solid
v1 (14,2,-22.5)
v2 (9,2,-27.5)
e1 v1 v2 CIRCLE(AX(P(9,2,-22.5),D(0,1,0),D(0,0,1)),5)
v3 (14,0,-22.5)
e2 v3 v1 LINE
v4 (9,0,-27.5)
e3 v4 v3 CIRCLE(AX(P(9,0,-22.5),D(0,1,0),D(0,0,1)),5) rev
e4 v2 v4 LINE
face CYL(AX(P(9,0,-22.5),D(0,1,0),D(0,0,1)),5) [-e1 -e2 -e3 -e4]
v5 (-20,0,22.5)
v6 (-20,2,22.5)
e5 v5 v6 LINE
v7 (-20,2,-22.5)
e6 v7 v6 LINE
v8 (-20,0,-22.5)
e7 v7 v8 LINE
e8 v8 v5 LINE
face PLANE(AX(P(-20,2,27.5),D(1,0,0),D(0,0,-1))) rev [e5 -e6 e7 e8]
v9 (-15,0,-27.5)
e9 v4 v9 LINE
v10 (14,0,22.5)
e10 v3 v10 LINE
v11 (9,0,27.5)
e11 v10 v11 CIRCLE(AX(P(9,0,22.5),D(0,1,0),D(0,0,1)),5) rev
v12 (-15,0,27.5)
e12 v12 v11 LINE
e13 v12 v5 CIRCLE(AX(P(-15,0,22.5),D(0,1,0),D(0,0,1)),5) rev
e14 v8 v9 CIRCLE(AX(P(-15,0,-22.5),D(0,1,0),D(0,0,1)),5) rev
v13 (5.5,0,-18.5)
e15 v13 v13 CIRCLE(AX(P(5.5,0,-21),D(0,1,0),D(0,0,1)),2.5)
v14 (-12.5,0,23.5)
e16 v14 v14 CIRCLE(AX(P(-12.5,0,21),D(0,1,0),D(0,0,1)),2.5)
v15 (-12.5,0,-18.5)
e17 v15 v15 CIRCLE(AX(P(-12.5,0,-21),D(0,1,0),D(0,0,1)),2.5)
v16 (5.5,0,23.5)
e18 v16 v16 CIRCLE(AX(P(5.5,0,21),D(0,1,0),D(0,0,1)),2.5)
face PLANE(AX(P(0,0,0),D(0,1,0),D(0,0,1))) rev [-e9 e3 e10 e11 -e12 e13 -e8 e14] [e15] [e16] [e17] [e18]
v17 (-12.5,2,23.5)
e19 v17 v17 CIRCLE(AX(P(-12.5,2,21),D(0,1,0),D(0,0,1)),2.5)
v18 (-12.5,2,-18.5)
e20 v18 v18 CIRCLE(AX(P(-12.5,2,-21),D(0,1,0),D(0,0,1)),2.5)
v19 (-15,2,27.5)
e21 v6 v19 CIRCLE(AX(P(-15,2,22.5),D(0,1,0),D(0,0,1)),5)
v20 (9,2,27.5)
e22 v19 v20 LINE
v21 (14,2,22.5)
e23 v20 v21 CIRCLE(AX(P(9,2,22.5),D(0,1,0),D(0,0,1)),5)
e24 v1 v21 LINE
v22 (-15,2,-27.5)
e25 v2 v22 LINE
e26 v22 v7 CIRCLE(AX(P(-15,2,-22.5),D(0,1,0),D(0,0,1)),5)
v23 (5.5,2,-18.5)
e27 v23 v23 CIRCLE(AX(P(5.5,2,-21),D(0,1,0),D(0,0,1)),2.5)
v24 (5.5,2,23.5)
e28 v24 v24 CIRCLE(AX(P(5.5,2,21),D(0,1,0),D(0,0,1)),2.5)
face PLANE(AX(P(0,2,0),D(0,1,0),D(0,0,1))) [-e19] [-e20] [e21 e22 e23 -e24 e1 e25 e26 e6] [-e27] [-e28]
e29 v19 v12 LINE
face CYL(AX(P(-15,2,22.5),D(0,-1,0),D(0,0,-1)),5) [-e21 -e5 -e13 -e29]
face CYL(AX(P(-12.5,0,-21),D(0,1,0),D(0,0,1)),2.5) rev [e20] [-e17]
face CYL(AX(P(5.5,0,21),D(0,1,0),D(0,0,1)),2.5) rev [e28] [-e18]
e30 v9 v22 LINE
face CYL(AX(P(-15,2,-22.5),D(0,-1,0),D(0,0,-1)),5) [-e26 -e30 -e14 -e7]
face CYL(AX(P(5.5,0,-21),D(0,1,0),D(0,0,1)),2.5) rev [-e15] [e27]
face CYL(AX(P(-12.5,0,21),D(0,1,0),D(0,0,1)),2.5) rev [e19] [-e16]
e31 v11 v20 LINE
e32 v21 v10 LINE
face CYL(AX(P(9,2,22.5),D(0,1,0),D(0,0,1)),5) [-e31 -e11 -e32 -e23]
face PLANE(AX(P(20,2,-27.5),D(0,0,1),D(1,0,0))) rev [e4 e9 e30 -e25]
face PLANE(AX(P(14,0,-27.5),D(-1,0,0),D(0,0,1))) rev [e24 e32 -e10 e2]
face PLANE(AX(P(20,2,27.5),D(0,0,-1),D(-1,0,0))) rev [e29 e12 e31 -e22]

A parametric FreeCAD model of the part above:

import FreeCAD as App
import Part
import Sketcher


def edges_at(feature, points):
    """Names of the edges that pass closest to the given points."""
    edges = feature.Shape.Edges
    near = lambda p: min(range(len(edges)), key=lambda i: edges[i].distToShape(Part.Vertex(*p))[0])
    return sorted({f"Edge{near(p) + 1}" for p in points})

doc = App.newDocument("Part")
body = doc.addObject("PartDesign::Body", "Body")

# Sketch on XZ plane
sketch1 = body.newObject("Sketcher::SketchObject", "Sketch")
sketch1.AttachmentSupport = (doc.getObject("XZ_Plane"), [""])
sketch1.MapMode = "FlatFace"
sketch1.addGeometry([
    Part.LineSegment(App.Vector(-20, -28, 0), App.Vector(-20, 28, 0)),
    Part.LineSegment(App.Vector(-20, 28, 0), App.Vector(20, 28, 0)),
    Part.LineSegment(App.Vector(20, 28, 0), App.Vector(20, -28, 0)),
    Part.LineSegment(App.Vector(20, -28, 0), App.Vector(-20, -28, 0)),
], False)
sketch1.addConstraint([
    Sketcher.Constraint("Coincident", 0, 2, 1, 1),
    Sketcher.Constraint("Coincident", 1, 2, 2, 1),
    Sketcher.Constraint("Coincident", 2, 2, 3, 1),
    Sketcher.Constraint("Coincident", 3, 2, 0, 1),
    Sketcher.Constraint("Vertical", 0),
    Sketcher.Constraint("Horizontal", 1),
    Sketcher.Constraint("Vertical", 2),
    Sketcher.Constraint("Horizontal", 3),
    Sketcher.Constraint("Symmetric", 0, 2, 2, 2, -1, 1),
    Sketcher.Constraint("DistanceX", 1, 1, 1, 2, 40.0),
    Sketcher.Constraint("DistanceY", 0, 1, 0, 2, 55.0),
])
pad1 = body.newObject("PartDesign::Pad", "Pad")
pad1.Profile = sketch1
pad1.Length = 2
pad1.Reversed = True

# Sketch on XZ plane
sketch2 = body.newObject("Sketcher::SketchObject", "Sketch001")
sketch2.AttachmentSupport = (doc.getObject("XZ_Plane"), [""])
sketch2.MapMode = "FlatFace"
sketch2.AttachmentOffset = App.Placement(App.Vector(0, 0, -2), App.Rotation())
sketch2.addGeometry([
    Part.Circle(App.Vector(-12.5, -21, 0), App.Vector(0, 0, 1), 2.5),
    Part.Circle(App.Vector(-12.5, 21, 0), App.Vector(0, 0, 1), 2.5),
    Part.Circle(App.Vector(5.5, -21, 0), App.Vector(0, 0, 1), 2.5),
    Part.Circle(App.Vector(5.5, 21, 0), App.Vector(0, 0, 1), 2.5),
], False)
sketch2.addConstraint([
    Sketcher.Constraint("Equal", 0, 1),
    Sketcher.Constraint("Equal", 1, 2),
    Sketcher.Constraint("Equal", 2, 3),
    Sketcher.Constraint("Symmetric", 0, 3, 1, 3, -1),
    Sketcher.Constraint("Symmetric", 2, 3, 3, 3, -1),
    Sketcher.Constraint("Horizontal", 0, 3, 2, 3),
    Sketcher.Constraint("Diameter", 0, 5.0),
    Sketcher.Constraint("DistanceY", 0, 3, -1, 1, 21.0),
    Sketcher.Constraint("DistanceX", 0, 3, 2, 3, 18.0),
    Sketcher.Constraint("DistanceX", 0, 3, -1, 1, 12.5),
])
pocket1 = body.newObject("PartDesign::Pocket", "Pocket")
pocket1.Profile = sketch2
pocket1.Length = 2
pocket1.Reversed = True

# Sketch on XZ plane
sketch3 = body.newObject("Sketcher::SketchObject", "Sketch002")
sketch3.AttachmentSupport = (doc.getObject("XZ_Plane"), [""])
sketch3.MapMode = "FlatFace"
sketch3.AttachmentOffset = App.Placement(App.Vector(0, 0, -2), App.Rotation())
sketch3.addGeometry([
    Part.LineSegment(App.Vector(14, -28, 0), App.Vector(14, 28, 0)),
    Part.LineSegment(App.Vector(14, 28, 0), App.Vector(20, 28, 0)),
    Part.LineSegment(App.Vector(20, 28, 0), App.Vector(20, -28, 0)),
    Part.LineSegment(App.Vector(20, -28, 0), App.Vector(14, -28, 0)),
], False)
sketch3.addConstraint([
    Sketcher.Constraint("Coincident", 0, 2, 1, 1),
    Sketcher.Constraint("Coincident", 1, 2, 2, 1),
    Sketcher.Constraint("Coincident", 2, 2, 3, 1),
    Sketcher.Constraint("Coincident", 3, 2, 0, 1),
    Sketcher.Constraint("Vertical", 0),
    Sketcher.Constraint("Horizontal", 1),
    Sketcher.Constraint("Vertical", 2),
    Sketcher.Constraint("Horizontal", 3),
    Sketcher.Constraint("DistanceX", 1, 1, 1, 2, 6.0),
    Sketcher.Constraint("DistanceY", 0, 1, 0, 2, 55.0),
    Sketcher.Constraint("DistanceX", -1, 1, 0, 2, 14.0),
    Sketcher.Constraint("DistanceY", -1, 1, 0, 2, 27.5),
])
pocket2 = body.newObject("PartDesign::Pocket", "Pocket001")
pocket2.Profile = sketch3
pocket2.Length = 2
pocket2.Reversed = True
doc.recompute()

fillet = body.newObject("PartDesign::Fillet", "Fillet")
fillet.Base = (pocket2, edges_at(pocket2, [
    (14, 1, 27.5),
    (14, 1, -27.5),
    (-20, 1, -27.5),
    (-20, 1, 27.5),
]))
fillet.Radius = 5

doc.recompute()
